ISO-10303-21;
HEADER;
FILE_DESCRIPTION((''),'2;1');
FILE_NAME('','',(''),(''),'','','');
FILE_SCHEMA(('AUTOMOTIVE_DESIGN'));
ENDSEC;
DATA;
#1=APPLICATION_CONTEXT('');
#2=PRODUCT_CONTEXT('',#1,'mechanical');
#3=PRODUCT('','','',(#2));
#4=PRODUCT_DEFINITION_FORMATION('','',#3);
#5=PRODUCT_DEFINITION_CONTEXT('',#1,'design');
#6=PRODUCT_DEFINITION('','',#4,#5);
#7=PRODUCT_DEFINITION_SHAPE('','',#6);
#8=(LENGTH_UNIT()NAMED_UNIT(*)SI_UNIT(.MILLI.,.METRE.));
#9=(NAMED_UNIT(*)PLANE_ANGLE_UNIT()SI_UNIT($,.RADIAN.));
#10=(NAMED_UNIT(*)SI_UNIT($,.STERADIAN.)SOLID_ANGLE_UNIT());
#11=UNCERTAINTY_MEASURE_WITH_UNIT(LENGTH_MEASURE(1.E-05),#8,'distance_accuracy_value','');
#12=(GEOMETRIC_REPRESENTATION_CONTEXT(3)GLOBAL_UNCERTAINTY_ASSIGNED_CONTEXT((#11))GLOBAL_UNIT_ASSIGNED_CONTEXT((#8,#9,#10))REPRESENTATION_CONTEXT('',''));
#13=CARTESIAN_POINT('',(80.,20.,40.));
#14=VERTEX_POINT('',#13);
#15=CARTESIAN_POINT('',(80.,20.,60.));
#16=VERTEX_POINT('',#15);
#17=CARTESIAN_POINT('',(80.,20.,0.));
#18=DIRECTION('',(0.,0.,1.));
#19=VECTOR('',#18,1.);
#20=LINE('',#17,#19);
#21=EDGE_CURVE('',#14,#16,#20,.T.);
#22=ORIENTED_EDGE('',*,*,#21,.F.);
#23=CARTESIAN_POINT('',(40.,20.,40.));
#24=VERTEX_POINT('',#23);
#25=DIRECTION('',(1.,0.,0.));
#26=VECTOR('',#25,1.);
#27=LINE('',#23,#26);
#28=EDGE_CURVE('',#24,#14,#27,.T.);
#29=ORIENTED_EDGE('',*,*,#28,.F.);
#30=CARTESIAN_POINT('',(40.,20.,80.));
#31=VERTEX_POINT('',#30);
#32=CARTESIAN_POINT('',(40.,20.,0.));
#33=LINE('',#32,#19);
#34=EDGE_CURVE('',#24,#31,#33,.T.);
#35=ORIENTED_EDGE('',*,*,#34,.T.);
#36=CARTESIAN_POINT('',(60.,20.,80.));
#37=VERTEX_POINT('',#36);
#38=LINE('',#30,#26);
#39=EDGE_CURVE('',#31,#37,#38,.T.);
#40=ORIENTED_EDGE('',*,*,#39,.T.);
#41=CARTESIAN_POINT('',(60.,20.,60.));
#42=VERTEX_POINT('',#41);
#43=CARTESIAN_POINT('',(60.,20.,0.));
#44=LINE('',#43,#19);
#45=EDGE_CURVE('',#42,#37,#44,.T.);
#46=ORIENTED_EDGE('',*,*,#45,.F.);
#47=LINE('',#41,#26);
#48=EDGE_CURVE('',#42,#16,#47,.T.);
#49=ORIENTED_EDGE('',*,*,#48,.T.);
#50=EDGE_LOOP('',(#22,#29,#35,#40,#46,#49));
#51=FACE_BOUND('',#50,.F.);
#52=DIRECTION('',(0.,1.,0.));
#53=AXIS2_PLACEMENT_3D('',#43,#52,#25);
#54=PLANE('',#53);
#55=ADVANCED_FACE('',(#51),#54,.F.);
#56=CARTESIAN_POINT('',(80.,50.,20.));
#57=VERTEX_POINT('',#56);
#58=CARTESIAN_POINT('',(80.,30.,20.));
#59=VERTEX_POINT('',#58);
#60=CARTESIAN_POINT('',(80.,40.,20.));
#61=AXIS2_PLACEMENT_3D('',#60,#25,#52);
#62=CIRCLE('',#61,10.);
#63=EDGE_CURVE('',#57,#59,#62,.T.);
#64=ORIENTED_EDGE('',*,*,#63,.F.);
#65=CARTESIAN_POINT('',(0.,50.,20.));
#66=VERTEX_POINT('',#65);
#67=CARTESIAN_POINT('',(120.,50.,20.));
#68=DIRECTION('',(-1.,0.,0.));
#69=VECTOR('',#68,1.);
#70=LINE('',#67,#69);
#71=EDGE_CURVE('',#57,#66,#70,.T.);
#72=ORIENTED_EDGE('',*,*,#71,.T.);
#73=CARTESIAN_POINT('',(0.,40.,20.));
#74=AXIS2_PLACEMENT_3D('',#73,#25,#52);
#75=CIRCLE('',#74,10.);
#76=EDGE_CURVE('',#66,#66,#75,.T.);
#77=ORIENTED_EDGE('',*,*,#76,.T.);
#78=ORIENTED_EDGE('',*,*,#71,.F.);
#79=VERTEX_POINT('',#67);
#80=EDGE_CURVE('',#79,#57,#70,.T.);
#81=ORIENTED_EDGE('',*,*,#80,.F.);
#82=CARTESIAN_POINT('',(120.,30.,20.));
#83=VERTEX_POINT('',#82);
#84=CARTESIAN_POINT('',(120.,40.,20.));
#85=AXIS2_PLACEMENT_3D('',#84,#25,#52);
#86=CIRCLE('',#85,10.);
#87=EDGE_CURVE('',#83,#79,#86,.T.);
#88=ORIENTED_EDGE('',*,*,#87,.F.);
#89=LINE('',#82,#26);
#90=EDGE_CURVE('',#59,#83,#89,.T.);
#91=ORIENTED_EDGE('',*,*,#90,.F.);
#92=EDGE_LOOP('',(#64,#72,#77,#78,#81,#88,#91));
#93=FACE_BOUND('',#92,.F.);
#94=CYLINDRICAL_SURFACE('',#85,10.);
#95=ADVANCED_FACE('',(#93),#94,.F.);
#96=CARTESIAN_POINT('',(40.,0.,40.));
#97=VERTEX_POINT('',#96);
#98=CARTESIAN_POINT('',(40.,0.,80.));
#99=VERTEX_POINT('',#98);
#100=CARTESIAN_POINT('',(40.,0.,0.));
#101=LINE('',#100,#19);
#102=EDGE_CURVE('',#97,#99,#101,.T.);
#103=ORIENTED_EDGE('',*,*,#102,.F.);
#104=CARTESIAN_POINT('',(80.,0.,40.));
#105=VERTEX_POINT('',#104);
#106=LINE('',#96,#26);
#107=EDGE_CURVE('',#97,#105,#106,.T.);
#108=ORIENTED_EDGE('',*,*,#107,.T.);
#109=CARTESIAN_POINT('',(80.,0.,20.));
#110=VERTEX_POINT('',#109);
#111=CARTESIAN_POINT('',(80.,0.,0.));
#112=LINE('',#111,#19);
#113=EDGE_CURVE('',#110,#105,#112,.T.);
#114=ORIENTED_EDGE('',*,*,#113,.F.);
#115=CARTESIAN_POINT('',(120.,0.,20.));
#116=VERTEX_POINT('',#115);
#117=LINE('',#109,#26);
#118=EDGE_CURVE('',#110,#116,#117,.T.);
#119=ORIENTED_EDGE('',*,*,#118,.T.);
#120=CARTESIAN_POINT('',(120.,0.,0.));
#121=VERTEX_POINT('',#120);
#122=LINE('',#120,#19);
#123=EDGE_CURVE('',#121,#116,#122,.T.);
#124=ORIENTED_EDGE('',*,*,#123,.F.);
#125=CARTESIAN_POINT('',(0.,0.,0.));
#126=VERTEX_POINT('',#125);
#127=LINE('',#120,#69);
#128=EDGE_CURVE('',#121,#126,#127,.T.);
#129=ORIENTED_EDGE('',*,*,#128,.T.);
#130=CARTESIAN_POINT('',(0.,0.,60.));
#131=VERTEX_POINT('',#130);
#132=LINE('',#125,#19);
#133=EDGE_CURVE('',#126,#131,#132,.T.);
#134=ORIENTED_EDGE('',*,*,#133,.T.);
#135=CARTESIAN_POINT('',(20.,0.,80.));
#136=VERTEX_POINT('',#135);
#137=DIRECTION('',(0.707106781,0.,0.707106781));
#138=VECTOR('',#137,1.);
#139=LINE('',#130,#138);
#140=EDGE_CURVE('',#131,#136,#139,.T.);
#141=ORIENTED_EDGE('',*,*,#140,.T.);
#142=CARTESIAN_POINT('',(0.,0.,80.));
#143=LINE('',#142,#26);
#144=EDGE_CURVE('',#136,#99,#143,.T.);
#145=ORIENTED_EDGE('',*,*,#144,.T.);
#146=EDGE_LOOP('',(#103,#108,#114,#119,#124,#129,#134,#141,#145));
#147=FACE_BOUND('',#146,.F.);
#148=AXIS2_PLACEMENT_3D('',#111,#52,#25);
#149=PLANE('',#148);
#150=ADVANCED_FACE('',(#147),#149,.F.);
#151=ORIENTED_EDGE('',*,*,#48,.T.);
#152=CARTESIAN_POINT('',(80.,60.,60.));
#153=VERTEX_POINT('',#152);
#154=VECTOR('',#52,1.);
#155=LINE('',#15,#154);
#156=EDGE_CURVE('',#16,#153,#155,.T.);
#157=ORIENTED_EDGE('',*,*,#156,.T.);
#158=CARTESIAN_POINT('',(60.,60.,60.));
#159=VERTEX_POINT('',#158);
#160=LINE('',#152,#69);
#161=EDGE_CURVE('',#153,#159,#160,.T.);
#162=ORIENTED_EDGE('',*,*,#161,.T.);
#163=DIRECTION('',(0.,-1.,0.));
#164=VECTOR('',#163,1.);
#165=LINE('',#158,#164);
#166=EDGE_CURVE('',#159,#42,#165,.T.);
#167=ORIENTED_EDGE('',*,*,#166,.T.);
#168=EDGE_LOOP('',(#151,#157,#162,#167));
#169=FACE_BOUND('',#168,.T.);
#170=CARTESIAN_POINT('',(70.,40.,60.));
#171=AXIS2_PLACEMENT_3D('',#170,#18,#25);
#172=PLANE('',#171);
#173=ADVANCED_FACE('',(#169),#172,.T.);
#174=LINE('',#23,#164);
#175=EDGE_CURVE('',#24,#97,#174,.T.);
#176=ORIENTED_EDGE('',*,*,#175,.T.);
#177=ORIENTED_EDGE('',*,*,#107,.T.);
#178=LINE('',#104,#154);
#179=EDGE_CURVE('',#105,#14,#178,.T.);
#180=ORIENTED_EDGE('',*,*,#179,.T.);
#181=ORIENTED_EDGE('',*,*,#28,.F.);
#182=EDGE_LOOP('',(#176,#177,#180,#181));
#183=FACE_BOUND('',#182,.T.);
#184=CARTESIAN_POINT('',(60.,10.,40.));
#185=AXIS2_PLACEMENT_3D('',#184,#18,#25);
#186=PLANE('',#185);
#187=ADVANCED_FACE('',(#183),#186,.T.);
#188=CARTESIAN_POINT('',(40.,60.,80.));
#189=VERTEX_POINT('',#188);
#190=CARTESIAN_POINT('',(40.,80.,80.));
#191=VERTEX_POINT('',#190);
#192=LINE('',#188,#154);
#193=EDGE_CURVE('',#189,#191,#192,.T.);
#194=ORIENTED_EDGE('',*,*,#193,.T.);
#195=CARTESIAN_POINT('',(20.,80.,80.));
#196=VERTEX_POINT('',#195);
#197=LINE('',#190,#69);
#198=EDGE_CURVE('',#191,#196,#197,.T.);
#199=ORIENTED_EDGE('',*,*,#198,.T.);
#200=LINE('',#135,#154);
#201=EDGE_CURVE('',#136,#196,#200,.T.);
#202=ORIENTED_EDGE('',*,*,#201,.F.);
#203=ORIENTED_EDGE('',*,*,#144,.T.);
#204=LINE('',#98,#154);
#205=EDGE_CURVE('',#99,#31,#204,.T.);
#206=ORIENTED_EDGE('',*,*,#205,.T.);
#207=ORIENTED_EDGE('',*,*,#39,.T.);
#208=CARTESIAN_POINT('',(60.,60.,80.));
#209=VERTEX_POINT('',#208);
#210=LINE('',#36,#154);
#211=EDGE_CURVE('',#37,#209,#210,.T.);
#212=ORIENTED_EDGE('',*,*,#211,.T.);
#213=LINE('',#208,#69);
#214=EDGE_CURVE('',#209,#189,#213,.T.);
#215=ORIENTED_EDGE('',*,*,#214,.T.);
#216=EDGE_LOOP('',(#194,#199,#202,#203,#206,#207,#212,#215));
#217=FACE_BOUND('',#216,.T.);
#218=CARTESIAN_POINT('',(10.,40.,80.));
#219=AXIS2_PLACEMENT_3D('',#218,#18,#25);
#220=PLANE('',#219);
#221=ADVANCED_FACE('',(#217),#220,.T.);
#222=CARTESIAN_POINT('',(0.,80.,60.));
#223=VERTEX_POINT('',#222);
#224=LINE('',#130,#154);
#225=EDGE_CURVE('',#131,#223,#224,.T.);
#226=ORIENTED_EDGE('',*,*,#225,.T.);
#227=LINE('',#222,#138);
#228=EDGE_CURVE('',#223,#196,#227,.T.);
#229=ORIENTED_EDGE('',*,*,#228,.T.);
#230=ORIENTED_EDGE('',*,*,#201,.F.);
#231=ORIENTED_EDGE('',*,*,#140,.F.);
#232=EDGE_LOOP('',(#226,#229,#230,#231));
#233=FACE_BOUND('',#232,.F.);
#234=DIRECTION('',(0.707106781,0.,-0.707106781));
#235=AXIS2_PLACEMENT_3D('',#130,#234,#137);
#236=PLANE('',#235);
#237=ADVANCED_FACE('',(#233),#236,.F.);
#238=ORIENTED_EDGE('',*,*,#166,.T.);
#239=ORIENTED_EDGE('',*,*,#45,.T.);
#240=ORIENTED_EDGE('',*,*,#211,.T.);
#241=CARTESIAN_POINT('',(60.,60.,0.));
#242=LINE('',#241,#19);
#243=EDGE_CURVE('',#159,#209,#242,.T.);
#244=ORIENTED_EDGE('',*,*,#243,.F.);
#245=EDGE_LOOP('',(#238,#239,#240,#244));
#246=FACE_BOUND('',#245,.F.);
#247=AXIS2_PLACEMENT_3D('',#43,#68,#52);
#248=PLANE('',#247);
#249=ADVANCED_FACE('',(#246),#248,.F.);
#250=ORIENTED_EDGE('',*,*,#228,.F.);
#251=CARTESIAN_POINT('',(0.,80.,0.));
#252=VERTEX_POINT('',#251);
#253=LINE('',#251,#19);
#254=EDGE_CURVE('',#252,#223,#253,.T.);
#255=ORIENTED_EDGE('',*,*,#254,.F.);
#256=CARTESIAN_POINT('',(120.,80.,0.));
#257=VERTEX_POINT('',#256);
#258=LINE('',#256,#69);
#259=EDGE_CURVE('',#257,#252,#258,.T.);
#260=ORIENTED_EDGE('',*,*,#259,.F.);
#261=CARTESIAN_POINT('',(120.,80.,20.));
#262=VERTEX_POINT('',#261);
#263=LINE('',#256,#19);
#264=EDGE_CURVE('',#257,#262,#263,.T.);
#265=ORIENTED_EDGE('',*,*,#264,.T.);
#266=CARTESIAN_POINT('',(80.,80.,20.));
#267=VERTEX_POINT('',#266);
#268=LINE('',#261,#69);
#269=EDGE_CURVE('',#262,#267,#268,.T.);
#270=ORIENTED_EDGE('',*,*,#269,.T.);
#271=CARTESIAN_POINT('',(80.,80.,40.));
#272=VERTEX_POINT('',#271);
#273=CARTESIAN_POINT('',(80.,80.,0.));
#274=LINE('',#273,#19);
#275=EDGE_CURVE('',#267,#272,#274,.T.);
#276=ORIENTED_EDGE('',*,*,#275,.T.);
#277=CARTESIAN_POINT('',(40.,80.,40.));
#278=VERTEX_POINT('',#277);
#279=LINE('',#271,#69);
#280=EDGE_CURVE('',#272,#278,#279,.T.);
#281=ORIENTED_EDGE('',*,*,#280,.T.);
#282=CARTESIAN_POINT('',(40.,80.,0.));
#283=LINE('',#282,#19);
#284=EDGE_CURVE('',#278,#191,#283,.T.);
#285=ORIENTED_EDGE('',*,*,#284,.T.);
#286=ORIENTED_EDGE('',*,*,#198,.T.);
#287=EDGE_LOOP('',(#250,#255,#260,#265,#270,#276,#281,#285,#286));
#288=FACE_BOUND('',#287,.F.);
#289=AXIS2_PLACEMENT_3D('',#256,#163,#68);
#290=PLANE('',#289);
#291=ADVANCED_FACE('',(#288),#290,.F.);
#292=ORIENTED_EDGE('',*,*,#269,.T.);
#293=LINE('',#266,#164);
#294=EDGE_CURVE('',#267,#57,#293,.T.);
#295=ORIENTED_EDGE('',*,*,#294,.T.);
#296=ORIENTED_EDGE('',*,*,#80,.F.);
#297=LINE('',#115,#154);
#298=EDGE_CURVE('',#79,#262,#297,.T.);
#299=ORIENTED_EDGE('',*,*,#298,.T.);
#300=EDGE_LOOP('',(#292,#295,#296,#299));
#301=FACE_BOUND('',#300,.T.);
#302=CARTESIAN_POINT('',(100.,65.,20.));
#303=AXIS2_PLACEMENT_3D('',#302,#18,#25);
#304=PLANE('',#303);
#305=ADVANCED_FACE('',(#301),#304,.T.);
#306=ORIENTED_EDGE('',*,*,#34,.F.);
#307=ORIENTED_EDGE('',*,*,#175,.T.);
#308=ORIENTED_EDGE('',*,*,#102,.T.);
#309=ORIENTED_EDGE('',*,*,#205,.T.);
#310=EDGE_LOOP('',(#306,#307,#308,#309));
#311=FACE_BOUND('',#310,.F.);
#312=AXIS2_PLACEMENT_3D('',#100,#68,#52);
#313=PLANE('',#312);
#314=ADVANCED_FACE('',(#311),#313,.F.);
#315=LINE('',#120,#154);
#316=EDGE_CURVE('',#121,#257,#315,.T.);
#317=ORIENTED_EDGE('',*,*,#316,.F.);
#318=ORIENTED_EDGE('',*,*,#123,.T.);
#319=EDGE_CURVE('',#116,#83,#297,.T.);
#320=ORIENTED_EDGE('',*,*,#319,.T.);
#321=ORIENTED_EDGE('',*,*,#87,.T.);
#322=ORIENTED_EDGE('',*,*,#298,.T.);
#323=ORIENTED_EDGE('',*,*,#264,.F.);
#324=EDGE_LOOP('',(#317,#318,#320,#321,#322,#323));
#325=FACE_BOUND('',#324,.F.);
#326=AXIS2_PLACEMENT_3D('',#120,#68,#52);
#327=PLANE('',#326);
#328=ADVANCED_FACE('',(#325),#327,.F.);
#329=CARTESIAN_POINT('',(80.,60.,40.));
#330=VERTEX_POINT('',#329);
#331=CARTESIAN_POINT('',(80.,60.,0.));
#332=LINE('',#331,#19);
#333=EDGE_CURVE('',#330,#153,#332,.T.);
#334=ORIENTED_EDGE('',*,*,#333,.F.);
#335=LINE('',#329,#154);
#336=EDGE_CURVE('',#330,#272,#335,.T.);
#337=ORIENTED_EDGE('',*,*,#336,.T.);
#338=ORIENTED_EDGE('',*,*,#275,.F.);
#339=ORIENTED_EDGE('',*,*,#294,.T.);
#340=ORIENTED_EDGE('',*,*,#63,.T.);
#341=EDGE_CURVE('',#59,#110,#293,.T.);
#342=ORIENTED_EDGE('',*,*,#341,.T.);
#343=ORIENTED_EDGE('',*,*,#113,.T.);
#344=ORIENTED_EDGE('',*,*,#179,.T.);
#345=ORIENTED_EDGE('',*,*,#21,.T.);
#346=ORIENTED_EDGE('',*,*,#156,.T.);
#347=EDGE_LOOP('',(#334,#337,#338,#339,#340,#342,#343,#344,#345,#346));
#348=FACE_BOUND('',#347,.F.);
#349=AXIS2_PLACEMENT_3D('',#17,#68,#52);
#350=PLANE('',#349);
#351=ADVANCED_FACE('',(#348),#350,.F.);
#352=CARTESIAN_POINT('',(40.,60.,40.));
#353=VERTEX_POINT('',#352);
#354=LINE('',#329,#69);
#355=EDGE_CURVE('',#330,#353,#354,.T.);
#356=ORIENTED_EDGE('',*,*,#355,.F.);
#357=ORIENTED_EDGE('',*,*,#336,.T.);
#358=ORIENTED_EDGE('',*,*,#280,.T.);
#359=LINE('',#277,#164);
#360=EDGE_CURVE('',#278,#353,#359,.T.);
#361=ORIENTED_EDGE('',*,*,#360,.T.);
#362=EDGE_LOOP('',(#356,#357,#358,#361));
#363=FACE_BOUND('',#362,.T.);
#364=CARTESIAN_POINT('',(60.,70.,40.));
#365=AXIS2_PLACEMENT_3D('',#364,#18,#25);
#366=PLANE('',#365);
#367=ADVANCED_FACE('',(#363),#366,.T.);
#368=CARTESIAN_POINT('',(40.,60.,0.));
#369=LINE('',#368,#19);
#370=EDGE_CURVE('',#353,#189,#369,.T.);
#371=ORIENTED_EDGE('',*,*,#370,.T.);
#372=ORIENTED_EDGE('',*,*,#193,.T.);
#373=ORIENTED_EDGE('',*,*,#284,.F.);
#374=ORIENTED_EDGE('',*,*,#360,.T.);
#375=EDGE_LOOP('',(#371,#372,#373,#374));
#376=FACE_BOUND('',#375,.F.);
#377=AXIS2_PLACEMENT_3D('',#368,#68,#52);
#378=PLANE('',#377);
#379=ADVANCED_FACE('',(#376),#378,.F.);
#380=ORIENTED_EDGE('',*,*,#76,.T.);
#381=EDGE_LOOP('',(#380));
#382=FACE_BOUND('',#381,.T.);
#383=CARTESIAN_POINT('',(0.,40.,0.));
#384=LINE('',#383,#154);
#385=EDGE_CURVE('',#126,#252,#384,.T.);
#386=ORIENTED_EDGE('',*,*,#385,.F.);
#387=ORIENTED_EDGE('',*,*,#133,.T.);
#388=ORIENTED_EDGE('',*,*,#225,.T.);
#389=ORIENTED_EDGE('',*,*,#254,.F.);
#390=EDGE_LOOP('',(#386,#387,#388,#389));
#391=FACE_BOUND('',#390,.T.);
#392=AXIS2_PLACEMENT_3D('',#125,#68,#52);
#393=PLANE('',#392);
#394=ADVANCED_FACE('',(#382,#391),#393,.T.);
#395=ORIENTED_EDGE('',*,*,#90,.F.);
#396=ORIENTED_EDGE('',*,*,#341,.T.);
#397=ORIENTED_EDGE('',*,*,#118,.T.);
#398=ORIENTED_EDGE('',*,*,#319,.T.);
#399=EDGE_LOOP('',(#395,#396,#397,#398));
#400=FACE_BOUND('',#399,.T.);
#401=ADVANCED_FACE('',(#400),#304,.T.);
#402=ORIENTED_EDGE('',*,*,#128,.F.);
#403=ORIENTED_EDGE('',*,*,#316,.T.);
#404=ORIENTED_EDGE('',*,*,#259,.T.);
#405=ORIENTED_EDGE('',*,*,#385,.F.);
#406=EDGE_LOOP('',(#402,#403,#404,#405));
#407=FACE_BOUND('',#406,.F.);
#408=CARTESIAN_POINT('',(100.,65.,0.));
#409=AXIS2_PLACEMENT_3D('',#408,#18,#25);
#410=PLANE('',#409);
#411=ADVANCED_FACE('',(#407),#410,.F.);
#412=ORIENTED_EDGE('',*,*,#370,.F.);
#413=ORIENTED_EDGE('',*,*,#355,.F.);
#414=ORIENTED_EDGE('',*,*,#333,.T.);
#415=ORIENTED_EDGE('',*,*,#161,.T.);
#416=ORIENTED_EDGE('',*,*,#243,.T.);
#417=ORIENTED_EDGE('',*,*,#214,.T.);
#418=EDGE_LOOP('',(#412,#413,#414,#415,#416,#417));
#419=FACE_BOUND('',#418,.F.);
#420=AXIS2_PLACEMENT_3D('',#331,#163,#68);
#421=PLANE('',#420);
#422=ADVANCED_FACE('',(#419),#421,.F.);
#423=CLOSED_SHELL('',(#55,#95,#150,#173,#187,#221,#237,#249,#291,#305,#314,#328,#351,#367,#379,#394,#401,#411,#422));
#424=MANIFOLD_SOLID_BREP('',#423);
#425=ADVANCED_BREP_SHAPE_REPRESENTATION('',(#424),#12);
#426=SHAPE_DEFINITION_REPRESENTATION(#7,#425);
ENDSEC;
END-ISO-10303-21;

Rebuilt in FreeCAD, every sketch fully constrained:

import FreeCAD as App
import Part
import Sketcher

V = App.Vector
Q = App.Units.Quantity


def add_polygon(sketch, points):
    """Adds a closed chain of lines whose ends are joined by coincident constraints."""
    first, n = sketch.GeometryCount, len(points)
    for a, b in zip(points, points[1:] + points[:1]):
        sketch.addGeometry(Part.LineSegment(App.Vector(*a, 0), App.Vector(*b, 0)), False)
    for i in range(n):
        sketch.addConstraint(Sketcher.Constraint("Coincident", first + i, 2, first + (i + 1) % n, 1))

doc = App.newDocument("Part")
body = doc.addObject("PartDesign::Body", "Body")

# Sketch on XY plane
sketch1 = body.newObject("Sketcher::SketchObject", "Sketch")
sketch1.AttachmentSupport = (doc.getObject("XY_Plane"), [""])
sketch1.MapMode = "FlatFace"
add_polygon(sketch1, [(0, 80), (0, 0), (40, 0), (40, 20), (60, 20), (60, 60), (40, 60), (40, 80)])  # lines 0-7
sketch1.addConstraint([
    Sketcher.Constraint("Vertical", 0),
    Sketcher.Constraint("Horizontal", 1),
    Sketcher.Constraint("Vertical", 2),
    Sketcher.Constraint("Horizontal", 3),
    Sketcher.Constraint("Vertical", 4),
    Sketcher.Constraint("Horizontal", 5),
    Sketcher.Constraint("Vertical", 6),
    Sketcher.Constraint("Horizontal", 7),
    Sketcher.Constraint("Coincident", 0, 2, -1, 1),
    Sketcher.Constraint("Vertical", 2, 2, 5, 2),
    Sketcher.Constraint("Equal", 5, 2),
    Sketcher.Constraint("Equal", 7, 4),
    Sketcher.Constraint("Equal", 2, 6),
    Sketcher.Constraint("DistanceX", 1, 1, 1, 2, Q("40 mm")),
    Sketcher.Constraint("DistanceX", 3, 1, 3, 2, Q("20 mm")),
])
pad1 = body.newObject("PartDesign::Pad", "Pad")
pad1.Profile = sketch1
pad1.Length = 80

# Sketch on XY plane
sketch2 = body.newObject("Sketcher::SketchObject", "Sketch001")
sketch2.AttachmentSupport = (doc.getObject("XY_Plane"), [""])
sketch2.MapMode = "FlatFace"
add_polygon(sketch2, [(80, 80), (40, 80), (40, 60), (80, 60)])  # lines 0-3
add_polygon(sketch2, [(40, 20), (40, 0), (80, 0), (80, 20)])  # lines 4-7
sketch2.addConstraint([
    Sketcher.Constraint("Horizontal", 0),
    Sketcher.Constraint("Vertical", 1),
    Sketcher.Constraint("Horizontal", 2),
    Sketcher.Constraint("Vertical", 3),
    Sketcher.Constraint("Vertical", 4),
    Sketcher.Constraint("Horizontal", 5),
    Sketcher.Constraint("Vertical", 6),
    Sketcher.Constraint("Horizontal", 7),
    Sketcher.Constraint("PointOnObject", 4, 2, -1),
    Sketcher.Constraint("Vertical", 1, 2, 4, 2),
    Sketcher.Constraint("Vertical", 3, 2, 5, 2),
    Sketcher.Constraint("Equal", 3, 4),
    Sketcher.Constraint("DistanceX", 0, 2, 0, 1, Q("40 mm")),
    Sketcher.Constraint("DistanceY", 1, 2, 1, 1, Q("20 mm")),
    Sketcher.Constraint("DistanceX", -1, 1, 0, 2, Q("40 mm")),
    Sketcher.Constraint("DistanceY", -1, 1, 0, 2, Q("80 mm")),
])
pad2 = body.newObject("PartDesign::Pad", "Pad001")
pad2.Profile = sketch2
pad2.Length = 40

# Sketch on XY plane
sketch3 = body.newObject("Sketcher::SketchObject", "Sketch002")
sketch3.AttachmentSupport = (doc.getObject("XY_Plane"), [""])
sketch3.MapMode = "FlatFace"
add_polygon(sketch3, [(60, 20), (80, 20), (80, 60), (60, 60)])  # lines 0-3
sketch3.addConstraint([
    Sketcher.Constraint("Horizontal", 0),
    Sketcher.Constraint("Vertical", 1),
    Sketcher.Constraint("Horizontal", 2),
    Sketcher.Constraint("Vertical", 3),
    Sketcher.Constraint("DistanceX", 0, 1, 0, 2, Q("20 mm")),
    Sketcher.Constraint("DistanceY", 1, 1, 1, 2, Q("40 mm")),
    Sketcher.Constraint("DistanceX", -1, 1, 0, 2, Q("80 mm")),
    Sketcher.Constraint("DistanceY", -1, 1, 0, 2, Q("20 mm")),
])
pad3 = body.newObject("PartDesign::Pad", "Pad002")
pad3.Profile = sketch3
pad3.Length = 60

# Sketch on XZ plane
sketch4 = body.newObject("Sketcher::SketchObject", "Sketch003")
sketch4.AttachmentSupport = (doc.getObject("XZ_Plane"), [""])
sketch4.MapMode = "FlatFace"
add_polygon(sketch4, [(20, 80), (0, 80), (0, 60)])  # lines 0-2
sketch4.addConstraint([
    Sketcher.Constraint("Horizontal", 0),
    Sketcher.Constraint("Vertical", 1),
    Sketcher.Constraint("PointOnObject", 0, 2, -2),
    Sketcher.Constraint("Equal", 0, 1),
    Sketcher.Constraint("DistanceX", 0, 2, 0, 1, Q("20 mm")),
    Sketcher.Constraint("DistanceY", -1, 1, 0, 2, Q("80 mm")),
])
pocket1 = body.newObject("PartDesign::Pocket", "Pocket")
pocket1.Profile = sketch4
pocket1.Length = 80

# Sketch on XY plane
sketch5 = body.newObject("Sketcher::SketchObject", "Sketch004")
sketch5.AttachmentSupport = (doc.getObject("XY_Plane"), [""])
sketch5.MapMode = "FlatFace"
add_polygon(sketch5, [(120, 80), (80, 80), (80, 0), (120, 0)])  # lines 0-3
sketch5.addConstraint([
    Sketcher.Constraint("Horizontal", 0),
    Sketcher.Constraint("Vertical", 1),
    Sketcher.Constraint("Horizontal", 2),
    Sketcher.Constraint("Vertical", 3),
    Sketcher.Constraint("PointOnObject", 1, 2, -1),
    Sketcher.Constraint("DistanceX", 0, 2, 0, 1, Q("40 mm")),
    Sketcher.Constraint("DistanceY", 1, 2, 1, 1, Q("80 mm")),
    Sketcher.Constraint("DistanceX", -1, 1, 0, 2, Q("80 mm")),
])
pad4 = body.newObject("PartDesign::Pad", "Pad003")
pad4.Profile = sketch5
pad4.Length = 20

# Sketch on YZ plane
sketch6 = body.newObject("Sketcher::SketchObject", "Sketch005")
sketch6.AttachmentSupport = (doc.getObject("YZ_Plane"), [""])
sketch6.MapMode = "FlatFace"
sketch6.AttachmentOffset = App.Placement(V(0, 0, 120), App.Rotation())
sketch6.addGeometry(Part.Circle(V(40, 20, 0), V(0, 0, 1), 10), False)
sketch6.addConstraint([
    Sketcher.Constraint("Diameter", 0, Q("20 mm")),
    Sketcher.Constraint("DistanceX", -1, 1, 0, 3, Q("40 mm")),
    Sketcher.Constraint("DistanceY", -1, 1, 0, 3, Q("20 mm")),
])
pocket2 = body.newObject("PartDesign::Pocket", "Pocket001")
pocket2.Profile = sketch6
pocket2.Length = 120

doc.recompute()
